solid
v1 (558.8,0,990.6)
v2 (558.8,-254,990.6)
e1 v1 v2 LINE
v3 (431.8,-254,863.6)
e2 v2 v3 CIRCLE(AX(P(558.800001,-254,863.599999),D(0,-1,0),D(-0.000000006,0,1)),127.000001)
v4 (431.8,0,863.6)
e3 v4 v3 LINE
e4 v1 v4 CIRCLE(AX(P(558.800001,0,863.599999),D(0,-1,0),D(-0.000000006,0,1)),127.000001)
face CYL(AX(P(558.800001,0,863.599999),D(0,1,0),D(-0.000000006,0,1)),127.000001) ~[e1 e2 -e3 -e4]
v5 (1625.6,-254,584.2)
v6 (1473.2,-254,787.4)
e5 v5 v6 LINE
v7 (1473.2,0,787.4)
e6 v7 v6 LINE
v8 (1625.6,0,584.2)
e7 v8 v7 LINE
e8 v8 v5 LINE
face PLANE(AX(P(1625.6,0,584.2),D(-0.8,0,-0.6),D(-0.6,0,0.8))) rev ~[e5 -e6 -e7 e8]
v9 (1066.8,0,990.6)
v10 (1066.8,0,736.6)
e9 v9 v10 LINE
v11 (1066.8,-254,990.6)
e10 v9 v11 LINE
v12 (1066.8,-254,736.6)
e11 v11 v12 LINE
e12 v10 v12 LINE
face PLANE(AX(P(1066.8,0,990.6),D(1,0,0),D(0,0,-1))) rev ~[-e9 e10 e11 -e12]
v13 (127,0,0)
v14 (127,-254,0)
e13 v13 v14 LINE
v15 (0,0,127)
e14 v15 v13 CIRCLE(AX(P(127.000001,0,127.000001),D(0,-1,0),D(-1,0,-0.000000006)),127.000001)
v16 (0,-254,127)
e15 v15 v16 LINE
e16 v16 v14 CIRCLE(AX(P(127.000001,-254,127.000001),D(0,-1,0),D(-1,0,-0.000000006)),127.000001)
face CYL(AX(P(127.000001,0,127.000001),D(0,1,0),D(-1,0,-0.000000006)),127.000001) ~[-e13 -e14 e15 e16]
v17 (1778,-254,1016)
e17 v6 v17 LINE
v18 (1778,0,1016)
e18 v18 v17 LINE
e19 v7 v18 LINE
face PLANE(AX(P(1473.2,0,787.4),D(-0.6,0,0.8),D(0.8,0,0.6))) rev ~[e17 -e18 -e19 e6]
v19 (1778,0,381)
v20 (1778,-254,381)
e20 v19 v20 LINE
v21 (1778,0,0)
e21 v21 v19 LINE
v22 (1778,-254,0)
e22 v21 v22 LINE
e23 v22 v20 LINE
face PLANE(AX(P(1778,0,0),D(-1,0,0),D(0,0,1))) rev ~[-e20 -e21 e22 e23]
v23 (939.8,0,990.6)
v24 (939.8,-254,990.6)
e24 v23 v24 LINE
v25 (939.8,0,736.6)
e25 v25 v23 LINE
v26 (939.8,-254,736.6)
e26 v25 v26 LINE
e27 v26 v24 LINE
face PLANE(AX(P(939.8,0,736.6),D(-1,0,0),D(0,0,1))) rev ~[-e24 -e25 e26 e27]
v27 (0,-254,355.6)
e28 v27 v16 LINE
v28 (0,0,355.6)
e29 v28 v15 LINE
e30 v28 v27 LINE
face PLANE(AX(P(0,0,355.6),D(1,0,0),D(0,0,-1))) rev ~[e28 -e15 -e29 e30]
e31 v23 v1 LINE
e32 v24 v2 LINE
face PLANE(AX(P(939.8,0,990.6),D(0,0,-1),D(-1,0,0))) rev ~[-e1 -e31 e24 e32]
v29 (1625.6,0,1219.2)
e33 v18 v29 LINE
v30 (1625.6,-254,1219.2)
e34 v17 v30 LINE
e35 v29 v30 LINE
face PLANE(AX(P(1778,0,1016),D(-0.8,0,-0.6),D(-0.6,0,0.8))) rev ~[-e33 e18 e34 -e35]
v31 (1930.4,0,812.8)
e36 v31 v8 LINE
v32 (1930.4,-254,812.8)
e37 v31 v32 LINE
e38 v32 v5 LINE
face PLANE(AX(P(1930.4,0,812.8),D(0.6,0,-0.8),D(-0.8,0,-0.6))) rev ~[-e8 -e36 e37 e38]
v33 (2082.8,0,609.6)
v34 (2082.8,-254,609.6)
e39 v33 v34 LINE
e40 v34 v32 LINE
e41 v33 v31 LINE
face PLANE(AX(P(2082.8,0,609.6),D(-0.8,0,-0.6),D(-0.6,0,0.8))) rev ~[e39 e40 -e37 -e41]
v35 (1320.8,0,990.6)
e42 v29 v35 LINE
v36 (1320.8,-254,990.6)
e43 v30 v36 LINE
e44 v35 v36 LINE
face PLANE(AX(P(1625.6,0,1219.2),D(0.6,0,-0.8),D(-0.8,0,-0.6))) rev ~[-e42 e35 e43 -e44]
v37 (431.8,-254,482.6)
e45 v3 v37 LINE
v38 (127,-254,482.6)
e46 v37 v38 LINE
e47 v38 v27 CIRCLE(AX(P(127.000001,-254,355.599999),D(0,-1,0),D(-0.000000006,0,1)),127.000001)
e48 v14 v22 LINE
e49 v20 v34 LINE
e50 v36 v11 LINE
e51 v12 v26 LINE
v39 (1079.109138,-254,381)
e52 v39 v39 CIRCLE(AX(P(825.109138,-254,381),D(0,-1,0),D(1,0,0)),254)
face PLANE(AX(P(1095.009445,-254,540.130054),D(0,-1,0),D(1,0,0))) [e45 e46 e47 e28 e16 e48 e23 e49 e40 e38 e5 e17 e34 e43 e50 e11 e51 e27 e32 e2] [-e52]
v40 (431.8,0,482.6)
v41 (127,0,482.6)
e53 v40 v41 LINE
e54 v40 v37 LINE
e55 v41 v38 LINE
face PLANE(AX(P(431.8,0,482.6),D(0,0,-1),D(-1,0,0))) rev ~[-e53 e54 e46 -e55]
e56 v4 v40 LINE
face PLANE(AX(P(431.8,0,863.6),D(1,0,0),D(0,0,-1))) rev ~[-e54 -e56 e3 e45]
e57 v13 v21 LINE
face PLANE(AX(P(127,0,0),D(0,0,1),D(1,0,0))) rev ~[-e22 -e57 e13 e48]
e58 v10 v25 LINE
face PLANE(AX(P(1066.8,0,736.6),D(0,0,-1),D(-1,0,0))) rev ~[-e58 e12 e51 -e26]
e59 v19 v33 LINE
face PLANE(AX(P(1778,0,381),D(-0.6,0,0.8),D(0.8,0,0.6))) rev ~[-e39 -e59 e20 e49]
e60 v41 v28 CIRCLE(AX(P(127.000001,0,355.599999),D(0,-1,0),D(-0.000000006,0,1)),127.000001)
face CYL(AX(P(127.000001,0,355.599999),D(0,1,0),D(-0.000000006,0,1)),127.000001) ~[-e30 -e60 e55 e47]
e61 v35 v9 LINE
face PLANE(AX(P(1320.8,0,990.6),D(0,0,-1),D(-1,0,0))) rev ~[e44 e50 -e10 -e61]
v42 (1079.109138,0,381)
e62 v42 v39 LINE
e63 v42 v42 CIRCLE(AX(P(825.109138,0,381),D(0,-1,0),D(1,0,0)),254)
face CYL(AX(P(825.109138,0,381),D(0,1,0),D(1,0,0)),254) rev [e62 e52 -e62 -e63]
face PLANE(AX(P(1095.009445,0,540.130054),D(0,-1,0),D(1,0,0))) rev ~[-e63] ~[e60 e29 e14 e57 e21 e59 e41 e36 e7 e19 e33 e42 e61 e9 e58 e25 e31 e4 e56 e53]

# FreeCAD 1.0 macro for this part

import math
import FreeCAD as App
import Part
import Sketcher
Q = App.Units.Quantity

doc = App.newDocument("Part")
body = doc.addObject("PartDesign::Body", "Body")

sketch1 = body.newObject("Sketcher::SketchObject", "Sketch")
sketch1.AttachmentSupport = (doc.getObject("XZ_Plane"), [""])
sketch1.MapMode = "FlatFace"
sketch1.addGeometry([
    Part.ArcOfCircle(Part.Circle(App.Vector(127, 127, 0), App.Vector(0, 0, 1), 127), math.radians(-180), math.radians(-90)),
    Part.LineSegment(App.Vector(127, 0, 0), App.Vector(1778, 0, 0)),
    Part.LineSegment(App.Vector(1778, 0, 0), App.Vector(1778, 381, 0)),
    Part.LineSegment(App.Vector(1778, 381, 0), App.Vector(2083, 610, 0)),
    Part.LineSegment(App.Vector(2083, 610, 0), App.Vector(1930, 813, 0)),
    Part.LineSegment(App.Vector(1930, 813, 0), App.Vector(1626, 584, 0)),
    Part.LineSegment(App.Vector(1626, 584, 0), App.Vector(1473, 787, 0)),
    Part.LineSegment(App.Vector(1473, 787, 0), App.Vector(1778, 1016, 0)),
    Part.LineSegment(App.Vector(1778, 1016, 0), App.Vector(1626, 1219, 0)),
    Part.LineSegment(App.Vector(1626, 1219, 0), App.Vector(1321, 991, 0)),
    Part.LineSegment(App.Vector(1321, 991, 0), App.Vector(1067, 991, 0)),
    Part.LineSegment(App.Vector(1067, 991, 0), App.Vector(1067, 737, 0)),
    Part.LineSegment(App.Vector(1067, 737, 0), App.Vector(940, 737, 0)),
    Part.LineSegment(App.Vector(940, 737, 0), App.Vector(940, 991, 0)),
    Part.LineSegment(App.Vector(940, 991, 0), App.Vector(559, 991, 0)),
    Part.ArcOfCircle(Part.Circle(App.Vector(559, 864, 0), App.Vector(0, 0, 1), 127), math.radians(90), math.radians(180)),
    Part.LineSegment(App.Vector(432, 864, 0), App.Vector(432, 483, 0)),
    Part.LineSegment(App.Vector(432, 483, 0), App.Vector(127, 483, 0)),
    Part.ArcOfCircle(Part.Circle(App.Vector(127, 356, 0), App.Vector(0, 0, 1), 127), math.radians(90), math.radians(180)),
    Part.LineSegment(App.Vector(0, 356, 0), App.Vector(0, 127, 0)),
    Part.Circle(App.Vector(825, 381, 0), App.Vector(0, 0, 1), 254),
], False)
sketch1.addConstraint([
    Sketcher.Constraint("Tangent", 0, 2, 1, 1),
    Sketcher.Constraint("Coincident", 1, 2, 2, 1),
    Sketcher.Constraint("Coincident", 2, 2, 3, 1),
    Sketcher.Constraint("Coincident", 3, 2, 4, 1),
    Sketcher.Constraint("Coincident", 4, 2, 5, 1),
    Sketcher.Constraint("Coincident", 5, 2, 6, 1),
    Sketcher.Constraint("Coincident", 6, 2, 7, 1),
    Sketcher.Constraint("Coincident", 7, 2, 8, 1),
    Sketcher.Constraint("Coincident", 8, 2, 9, 1),
    Sketcher.Constraint("Coincident", 9, 2, 10, 1),
    Sketcher.Constraint("Coincident", 10, 2, 11, 1),
    Sketcher.Constraint("Coincident", 11, 2, 12, 1),
    Sketcher.Constraint("Coincident", 12, 2, 13, 1),
    Sketcher.Constraint("Coincident", 13, 2, 14, 1),
    Sketcher.Constraint("Tangent", 14, 2, 15, 1),
    Sketcher.Constraint("Tangent", 15, 2, 16, 1),
    Sketcher.Constraint("Coincident", 16, 2, 17, 1),
    Sketcher.Constraint("Tangent", 17, 2, 18, 1),
    Sketcher.Constraint("Tangent", 18, 2, 19, 1),
    Sketcher.Constraint("Tangent", 19, 2, 0, 1),
    Sketcher.Constraint("Horizontal", 1),
    Sketcher.Constraint("Vertical", 2),
    Sketcher.Constraint("Horizontal", 10),
    Sketcher.Constraint("Vertical", 11),
    Sketcher.Constraint("Horizontal", 12),
    Sketcher.Constraint("Vertical", 13),
    Sketcher.Constraint("Horizontal", 14),
    Sketcher.Constraint("Vertical", 16),
    Sketcher.Constraint("Horizontal", 17),
    Sketcher.Constraint("Vertical", 19),
    Sketcher.Constraint("Equal", 0, 15),
    Sketcher.Constraint("Equal", 15, 18),
    Sketcher.Constraint("PointOnObject", 0, 2, -1),
    Sketcher.Constraint("PointOnObject", 18, 2, -2),
    Sketcher.Constraint("Perpendicular", 3, 4),
    Sketcher.Constraint("Perpendicular", 4, 5),
    Sketcher.Constraint("Perpendicular", 5, 6),
    Sketcher.Constraint("Perpendicular", 6, 7),
    Sketcher.Constraint("Perpendicular", 7, 8),
    Sketcher.Constraint("Perpendicular", 8, 9),
    Sketcher.Constraint("Horizontal", 20, 3, 2, 2),
    Sketcher.Constraint("Horizontal", 10, 2, 13, 2),
    Sketcher.Constraint("Vertical", 2, 2, 7, 2),
    Sketcher.Constraint("Vertical", 5, 2, 8, 2),
    Sketcher.Constraint("Equal", 14, 2),
    Sketcher.Constraint("Equal", 10, 11),
    Sketcher.Constraint("Equal", 2, 16),
    Sketcher.Constraint("Equal", 3, 5),
    Sketcher.Constraint("Equal", 4, 6),
    Sketcher.Constraint("Equal", 5, 7),
    Sketcher.Constraint("Equal", 7, 9),
    Sketcher.Constraint("Diameter", 20, Q("20 in")),
    Sketcher.Constraint("Radius", 0, Q("5 in")),
    Sketcher.Constraint("DistanceX", 1, 1, 1, 2, Q("65 in")),
    Sketcher.Constraint("DistanceX", 10, 2, 10, 1, Q("10 in")),
    Sketcher.Constraint("DistanceX", 12, 2, 12, 1, Q("5 in")),
    Sketcher.Constraint("DistanceX", 14, 2, 14, 1, Q("15 in")),
    Sketcher.Constraint("DistanceX", 17, 2, 17, 1, Q("12 in")),
    Sketcher.Constraint("DistanceY", 19, 2, 19, 1, Q("9 in")),
    Sketcher.Constraint("DistanceX", -1, 1, 20, 3, 825.109138),
])
pad1 = body.newObject("PartDesign::Pad", "Pad")
pad1.Profile = sketch1
pad1.Length = Q("10 in")

doc.recompute()
